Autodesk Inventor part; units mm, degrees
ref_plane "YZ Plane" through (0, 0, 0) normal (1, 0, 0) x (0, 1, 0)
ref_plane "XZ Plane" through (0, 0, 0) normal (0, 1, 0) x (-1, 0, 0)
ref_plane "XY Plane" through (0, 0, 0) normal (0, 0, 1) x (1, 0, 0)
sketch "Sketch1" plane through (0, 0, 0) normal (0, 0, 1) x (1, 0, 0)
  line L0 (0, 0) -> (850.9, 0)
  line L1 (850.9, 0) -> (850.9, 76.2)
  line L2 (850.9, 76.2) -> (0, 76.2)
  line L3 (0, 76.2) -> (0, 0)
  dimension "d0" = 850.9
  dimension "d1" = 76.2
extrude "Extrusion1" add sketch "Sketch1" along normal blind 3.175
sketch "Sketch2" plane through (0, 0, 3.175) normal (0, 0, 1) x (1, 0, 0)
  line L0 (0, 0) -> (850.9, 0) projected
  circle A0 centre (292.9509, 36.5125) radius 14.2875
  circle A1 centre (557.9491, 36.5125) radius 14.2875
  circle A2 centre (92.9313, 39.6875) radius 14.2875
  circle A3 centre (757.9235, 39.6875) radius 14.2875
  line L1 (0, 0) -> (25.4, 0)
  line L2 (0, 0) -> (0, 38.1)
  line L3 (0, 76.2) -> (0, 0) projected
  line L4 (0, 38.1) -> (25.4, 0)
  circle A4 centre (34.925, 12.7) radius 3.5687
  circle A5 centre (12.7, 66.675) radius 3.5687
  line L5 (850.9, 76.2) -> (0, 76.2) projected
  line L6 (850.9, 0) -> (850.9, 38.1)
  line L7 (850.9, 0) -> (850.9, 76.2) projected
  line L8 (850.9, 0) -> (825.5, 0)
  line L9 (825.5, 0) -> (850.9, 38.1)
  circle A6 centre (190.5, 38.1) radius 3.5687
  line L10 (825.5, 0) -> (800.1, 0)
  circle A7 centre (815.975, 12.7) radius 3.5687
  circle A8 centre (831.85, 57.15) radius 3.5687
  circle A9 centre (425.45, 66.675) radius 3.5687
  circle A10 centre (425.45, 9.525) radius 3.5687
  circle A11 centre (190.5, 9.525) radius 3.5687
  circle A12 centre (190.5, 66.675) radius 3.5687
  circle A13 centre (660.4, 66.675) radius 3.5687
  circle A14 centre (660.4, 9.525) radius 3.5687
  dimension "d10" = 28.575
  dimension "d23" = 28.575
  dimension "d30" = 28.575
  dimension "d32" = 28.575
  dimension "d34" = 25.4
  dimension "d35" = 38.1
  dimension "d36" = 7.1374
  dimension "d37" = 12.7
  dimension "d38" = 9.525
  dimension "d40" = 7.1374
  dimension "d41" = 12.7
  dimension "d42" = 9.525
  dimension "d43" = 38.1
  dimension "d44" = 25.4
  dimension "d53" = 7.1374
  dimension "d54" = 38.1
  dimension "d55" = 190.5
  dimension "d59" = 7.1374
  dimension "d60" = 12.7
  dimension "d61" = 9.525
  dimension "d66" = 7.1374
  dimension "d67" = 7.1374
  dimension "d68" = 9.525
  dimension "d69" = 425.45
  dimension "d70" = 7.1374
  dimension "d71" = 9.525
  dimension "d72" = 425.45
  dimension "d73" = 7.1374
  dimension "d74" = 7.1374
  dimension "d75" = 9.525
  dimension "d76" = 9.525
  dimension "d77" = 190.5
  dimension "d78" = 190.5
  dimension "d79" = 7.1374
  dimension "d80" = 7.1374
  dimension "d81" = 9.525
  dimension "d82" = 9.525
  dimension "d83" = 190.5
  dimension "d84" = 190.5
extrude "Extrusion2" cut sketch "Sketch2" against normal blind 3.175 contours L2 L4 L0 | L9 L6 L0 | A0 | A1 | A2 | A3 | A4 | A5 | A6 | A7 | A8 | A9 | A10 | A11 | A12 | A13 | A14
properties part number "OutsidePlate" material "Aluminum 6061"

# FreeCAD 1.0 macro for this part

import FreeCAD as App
import Part
import Sketcher

V = App.Vector
Q = App.Units.Quantity


def add_polygon(sketch, points):
    """Adds a closed chain of lines whose ends are joined by coincident constraints."""
    first, n = sketch.GeometryCount, len(points)
    for a, b in zip(points, points[1:] + points[:1]):
        sketch.addGeometry(Part.LineSegment(App.Vector(*a, 0), App.Vector(*b, 0)), False)
    for i in range(n):
        sketch.addConstraint(Sketcher.Constraint("Coincident", first + i, 2, first + (i + 1) % n, 1))

doc = App.newDocument("Part")
body = doc.addObject("PartDesign::Body", "Body")

sketch1 = body.newObject("Sketcher::SketchObject", "Sketch")
sketch1.AttachmentSupport = (doc.getObject("XY_Plane"), [""])
sketch1.MapMode = "FlatFace"
add_polygon(sketch1, [(0, 76.2), (0, 0), (850.9, 0), (850.9, 76.2)])
sketch1.addConstraint(Sketcher.Constraint("Vertical", 0))
sketch1.addConstraint(Sketcher.Constraint("Horizontal", 1))
sketch1.addConstraint(Sketcher.Constraint("Vertical", 2))
sketch1.addConstraint(Sketcher.Constraint("Horizontal", 3))
sketch1.addConstraint(Sketcher.Constraint("Coincident", 0, 2, -1, 1))
sketch1.addConstraint(Sketcher.Constraint("DistanceY", 0, 2, 0, 1, Q("3 in")))
sketch1.addConstraint(Sketcher.Constraint("DistanceX", 1, 1, 1, 2, Q("33.5 in")))
pad1 = body.newObject("PartDesign::Pad", "Pad")
pad1.Profile = sketch1
pad1.Length = Q("0.125 in")

sketch2 = body.newObject("Sketcher::SketchObject", "Sketch001")
sketch2.AttachmentSupport = (doc.getObject("XY_Plane"), [""])
sketch2.MapMode = "FlatFace"
sketch2.AttachmentOffset = App.Placement(V(0, 0, 0.125 * 25.4), App.Rotation())
add_polygon(sketch2, [(0, 38.1), (0, 0), (25.4, 0)])
add_polygon(sketch2, [(850.9, 38.1), (825.5, 0), (850.9, 0)])
sketch2.addGeometry(Part.Circle(V(292.9509, 36.5125, 0), V(0, 0, 1), 14.2875), False)
sketch2.addGeometry(Part.Circle(V(557.9491, 36.5125, 0), V(0, 0, 1), 14.2875), False)
sketch2.addGeometry(Part.Circle(V(92.9313, 39.6875, 0), V(0, 0, 1), 14.2875), False)
sketch2.addGeometry(Part.Circle(V(757.9235, 39.6875, 0), V(0, 0, 1), 14.2875), False)
sketch2.addGeometry(Part.Circle(V(34.925, 12.7, 0), V(0, 0, 1), 3.5687), False)
sketch2.addGeometry(Part.Circle(V(12.7, 66.675, 0), V(0, 0, 1), 3.5687), False)
sketch2.addGeometry(Part.Circle(V(190.5, 38.1, 0), V(0, 0, 1), 3.5687), False)
sketch2.addGeometry(Part.Circle(V(815.975, 12.7, 0), V(0, 0, 1), 3.5687), False)
sketch2.addGeometry(Part.Circle(V(831.85, 57.15, 0), V(0, 0, 1), 3.5687), False)
sketch2.addGeometry(Part.Circle(V(425.45, 66.675, 0), V(0, 0, 1), 3.5687), False)
sketch2.addGeometry(Part.Circle(V(425.45, 9.525, 0), V(0, 0, 1), 3.5687), False)
sketch2.addGeometry(Part.Circle(V(190.5, 9.525, 0), V(0, 0, 1), 3.5687), False)
sketch2.addGeometry(Part.Circle(V(190.5, 66.675, 0), V(0, 0, 1), 3.5687), False)
sketch2.addGeometry(Part.Circle(V(660.4, 66.675, 0), V(0, 0, 1), 3.5687), False)
sketch2.addGeometry(Part.Circle(V(660.4, 9.525, 0), V(0, 0, 1), 3.5687), False)
sketch2.addConstraint(Sketcher.Constraint("Vertical", 0))
sketch2.addConstraint(Sketcher.Constraint("Horizontal", 1))
sketch2.addConstraint(Sketcher.Constraint("Horizontal", 4))
sketch2.addConstraint(Sketcher.Constraint("Vertical", 5))
sketch2.addConstraint(Sketcher.Constraint("Coincident", 0, 2, -1, 1))
sketch2.addConstraint(Sketcher.Constraint("Equal", 6, 7))
sketch2.addConstraint(Sketcher.Constraint("Equal", 7, 8))
sketch2.addConstraint(Sketcher.Constraint("Equal", 8, 9))
sketch2.addConstraint(Sketcher.Constraint("Equal", 10, 11))
sketch2.addConstraint(Sketcher.Constraint("Equal", 11, 12))
sketch2.addConstraint(Sketcher.Constraint("Equal", 12, 13))
sketch2.addConstraint(Sketcher.Constraint("Equal", 13, 14))
sketch2.addConstraint(Sketcher.Constraint("Equal", 14, 15))
sketch2.addConstraint(Sketcher.Constraint("Equal", 15, 16))
sketch2.addConstraint(Sketcher.Constraint("Equal", 16, 17))
sketch2.addConstraint(Sketcher.Constraint("Equal", 17, 18))
sketch2.addConstraint(Sketcher.Constraint("Equal", 18, 19))
sketch2.addConstraint(Sketcher.Constraint("Equal", 19, 20))
sketch2.addConstraint(Sketcher.Constraint("PointOnObject", 3, 2, -1))
sketch2.addConstraint(Sketcher.Constraint("Horizontal", 6, 3, 7, 3))
sketch2.addConstraint(Sketcher.Constraint("Horizontal", 8, 3, 9, 3))
sketch2.addConstraint(Sketcher.Constraint("Horizontal", 10, 3, 13, 3))
sketch2.addConstraint(Sketcher.Constraint("Horizontal", 11, 3, 15, 3))
sketch2.addConstraint(Sketcher.Constraint("Horizontal", 16, 3, 17, 3))
sketch2.addConstraint(Sketcher.Constraint("Horizontal", 15, 3, 18, 3))
sketch2.addConstraint(Sketcher.Constraint("Horizontal", 18, 3, 19, 3))
sketch2.addConstraint(Sketcher.Constraint("Horizontal", 17, 3, 20, 3))
sketch2.addConstraint(Sketcher.Constraint("Horizontal", 12, 3, 2, 2))
sketch2.addConstraint(Sketcher.Constraint("Horizontal", 2, 2, 5, 2))
sketch2.addConstraint(Sketcher.Constraint("Vertical", 15, 3, 16, 3))
sketch2.addConstraint(Sketcher.Constraint("Vertical", 12, 3, 17, 3))
sketch2.addConstraint(Sketcher.Constraint("Vertical", 17, 3, 18, 3))
sketch2.addConstraint(Sketcher.Constraint("Vertical", 19, 3, 20, 3))
sketch2.addConstraint(Sketcher.Constraint("Equal", 1, 4))
sketch2.addConstraint(Sketcher.Constraint("DistanceX", 1, 1, 1, 2, Q("1 in")))
sketch2.addConstraint(Sketcher.Constraint("Diameter", 6, Q("1.125 in")))
sketch2.addConstraint(Sketcher.Constraint("Diameter", 10, Q("0.281 in")))
sketch2.addConstraint(Sketcher.Constraint("DistanceY", 0, 2, 0, 1, Q("1.5 in")))
sketch2.addConstraint(Sketcher.Constraint("DistanceY", 10, 3, 12, 3, Q("1 in")))
sketch2.addConstraint(Sketcher.Constraint("DistanceX", -1, 1, 11, 3, Q("0.5 in")))
sketch2.addConstraint(Sketcher.Constraint("DistanceX", -1, 1, 12, 3, Q("7.5 in")))
sketch2.addConstraint(Sketcher.Constraint("DistanceX", 20, 3, 4, 2, Q("7.5 in")))
sketch2.addConstraint(Sketcher.Constraint("DistanceX", -1, 1, 15, 3, Q("16.75 in")))
sketch2.addConstraint(Sketcher.Constraint("DistanceY", -1, 1, 16, 3, Q("0.375 in")))
sketch2.addConstraint(Sketcher.Constraint("DistanceX", -1, 1, 19, 3, Q("26 in")))
sketch2.addConstraint(Sketcher.Constraint("DistanceY", 12, 3, 11, 3, Q("1.125 in")))
sketch2.addConstraint(Sketcher.Constraint("DistanceY", 14, 3, 19, 3, Q("0.375 in")))
sketch2.addConstraint(Sketcher.Constraint("DistanceX", 1, 2, 10, 3, Q("0.375 in")))
sketch2.addConstraint(Sketcher.Constraint("DistanceX", 13, 3, 3, 2, Q("0.375 in")))
sketch2.addConstraint(Sketcher.Constraint("DistanceX", -1, 1, 14, 3, Q("32.75 in")))
sketch2.addConstraint(Sketcher.Constraint("DistanceY", -1, 1, 6, 3, Q("1.4375 in")))
sketch2.addConstraint(Sketcher.Constraint("DistanceY", -1, 1, 8, 3, Q("1.5625 in")))
sketch2.addConstraint(Sketcher.Constraint("DistanceX", 6, 3, 7, 3, Q("10.433 in")))
sketch2.addConstraint(Sketcher.Constraint("DistanceX", 7, 3, 9, 3, Q("7.873 in")))
sketch2.addConstraint(Sketcher.Constraint("DistanceX", -1, 1, 6, 3, Q("11.5335 in")))
sketch2.addConstraint(Sketcher.Constraint("DistanceX", 8, 3, 9, 3, Q("26.1808 in")))
pocket1 = body.newObject("PartDesign::Pocket", "Pocket")
pocket1.Profile = sketch2
pocket1.Length = Q("0.125 in")

doc.recompute()
